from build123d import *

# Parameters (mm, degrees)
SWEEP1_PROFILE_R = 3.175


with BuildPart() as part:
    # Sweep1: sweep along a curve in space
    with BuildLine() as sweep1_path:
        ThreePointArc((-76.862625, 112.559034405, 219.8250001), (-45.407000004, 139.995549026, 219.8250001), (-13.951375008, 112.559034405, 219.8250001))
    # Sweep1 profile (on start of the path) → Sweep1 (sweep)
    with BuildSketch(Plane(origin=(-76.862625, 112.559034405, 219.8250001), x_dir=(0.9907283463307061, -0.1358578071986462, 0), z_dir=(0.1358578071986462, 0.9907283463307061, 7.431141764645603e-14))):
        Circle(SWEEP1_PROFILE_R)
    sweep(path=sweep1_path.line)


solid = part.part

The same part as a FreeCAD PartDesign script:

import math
import FreeCAD as App
import Part
import Sketcher
Q = App.Units.Quantity

doc = App.newDocument("Part")
params = doc.addObject("Spreadsheet::Sheet", "Params")
for row, (alias, value) in enumerate([
    ("sketch1_diameter", "0.25 in"),
    ("sketch2_radius", "1.25 in"),
], start=1):
    params.set(f"A{row}", alias)
    params.set(f"B{row}", "=" + value)
    params.setAlias(f"B{row}", alias)

body = doc.addObject("PartDesign::Body", "Body")

sketch1 = body.newObject("Sketcher::SketchObject", "Sketch")
sketch1.Placement = App.Placement(App.Vector(-76.862625, 112.559034, 219.825), App.Rotation(App.Vector(0.990728346, -0.135857807, 0), App.Vector(0, 0, -0.999999999), App.Vector(0.135857807, 0.990728346, 0), "ZXY"))
sketch1.addGeometry(Part.Circle(App.Vector(0, 0, 0), App.Vector(0, 0, 1), 3.2), False)
sketch1.addConstraint([
    Sketcher.Constraint("Coincident", 0, 3, -1, 1),
    Sketcher.Constraint("Diameter", 0, Q("0.25 in")),
])
sketch1.setExpression("Constraints[1]", "Params.sketch1_diameter")

sketch2 = body.newObject("Sketcher::SketchObject", "Sketch001")
sketch2.AttachmentSupport = (doc.getObject("XY_Plane"), [""])
sketch2.MapMode = "FlatFace"
sketch2.AttachmentOffset = App.Placement(App.Vector(0, 0, 219.825), App.Rotation())
sketch2.addGeometry(Part.ArcOfCircle(Part.Circle(App.Vector(-45, 108, 0), App.Vector(0, 0, 1), 32), math.radians(8), math.radians(172)), False)
sketch2.addConstraint([
    Sketcher.Constraint("Radius", 0, Q("1.25 in")),
    Sketcher.Constraint("DistanceX", 0, 3, -1, 1, 45.407),
    Sketcher.Constraint("DistanceY", -1, 1, 0, 3, 108.245549),
    Sketcher.Constraint("DistanceX", 0, 2, 0, 1, 62.91125),
    Sketcher.Constraint("DistanceX", 0, 1, -1, 1, 13.951375),
])
sketch2.setExpression("Constraints[0]", "Params.sketch2_radius")
doc.recompute()

additivepipe = body.newObject("PartDesign::AdditivePipe", "AdditivePipe")
additivepipe.Profile = sketch1
additivepipe.Spine = (sketch2, ["Edge1"])

doc.recompute()
